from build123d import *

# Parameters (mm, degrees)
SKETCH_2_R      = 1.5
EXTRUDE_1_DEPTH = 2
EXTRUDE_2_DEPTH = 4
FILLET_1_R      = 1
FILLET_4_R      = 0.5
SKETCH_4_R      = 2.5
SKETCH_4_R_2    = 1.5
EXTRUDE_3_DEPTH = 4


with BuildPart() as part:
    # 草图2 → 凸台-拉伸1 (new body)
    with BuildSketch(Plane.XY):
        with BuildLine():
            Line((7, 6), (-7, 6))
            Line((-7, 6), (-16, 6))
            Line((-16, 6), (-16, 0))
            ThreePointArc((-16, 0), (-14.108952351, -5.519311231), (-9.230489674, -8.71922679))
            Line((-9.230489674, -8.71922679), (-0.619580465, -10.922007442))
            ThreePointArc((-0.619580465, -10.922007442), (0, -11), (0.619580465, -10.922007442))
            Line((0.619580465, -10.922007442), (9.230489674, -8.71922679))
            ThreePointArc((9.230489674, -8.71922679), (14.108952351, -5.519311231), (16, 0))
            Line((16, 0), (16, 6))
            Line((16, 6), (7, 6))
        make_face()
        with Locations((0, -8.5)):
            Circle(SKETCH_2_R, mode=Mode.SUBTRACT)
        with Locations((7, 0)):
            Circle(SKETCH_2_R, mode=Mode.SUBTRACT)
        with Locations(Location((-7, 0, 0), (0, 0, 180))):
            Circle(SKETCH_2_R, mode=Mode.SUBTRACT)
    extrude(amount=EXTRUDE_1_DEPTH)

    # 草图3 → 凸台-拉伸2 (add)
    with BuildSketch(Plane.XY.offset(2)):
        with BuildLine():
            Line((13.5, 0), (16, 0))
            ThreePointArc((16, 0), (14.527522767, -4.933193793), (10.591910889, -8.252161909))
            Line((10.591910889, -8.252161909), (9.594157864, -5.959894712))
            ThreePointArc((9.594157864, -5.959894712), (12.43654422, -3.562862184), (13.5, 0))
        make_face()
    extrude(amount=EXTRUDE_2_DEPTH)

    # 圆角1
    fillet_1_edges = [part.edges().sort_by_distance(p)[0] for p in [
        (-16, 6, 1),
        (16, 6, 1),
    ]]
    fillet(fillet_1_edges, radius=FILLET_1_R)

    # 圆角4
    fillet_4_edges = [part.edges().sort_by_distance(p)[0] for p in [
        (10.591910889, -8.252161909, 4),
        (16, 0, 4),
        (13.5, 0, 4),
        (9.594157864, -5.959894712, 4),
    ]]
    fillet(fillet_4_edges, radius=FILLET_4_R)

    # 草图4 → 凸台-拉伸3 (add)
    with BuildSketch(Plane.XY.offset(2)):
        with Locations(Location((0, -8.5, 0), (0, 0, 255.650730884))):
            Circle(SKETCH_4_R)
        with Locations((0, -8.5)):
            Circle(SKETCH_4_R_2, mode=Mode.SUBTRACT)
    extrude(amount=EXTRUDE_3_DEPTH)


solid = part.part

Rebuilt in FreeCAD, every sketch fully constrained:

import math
import FreeCAD as App
import Part
import Sketcher

V = App.Vector


def edges_at(feature, points):
    """Names of the edges that pass closest to the given points."""
    edges = feature.Shape.Edges
    near = lambda p: min(range(len(edges)), key=lambda i: edges[i].distToShape(Part.Vertex(*p))[0])
    return sorted({f"Edge{near(p) + 1}" for p in points})

doc = App.newDocument("Part")
body = doc.addObject("PartDesign::Body", "Body")

# Sketch on XY plane
sketch1 = doc.addObject("Sketcher::SketchObject", "Sketch")
body.addObject(sketch1)
sketch1.AttachmentSupport = (doc.XY_Plane, [""])
sketch1.MapMode = "FlatFace"
sketch1.addGeometry(Part.LineSegment(V(-16, 6, 0), V(-16, 0, 0)), False)
sketch1.addGeometry(Part.ArcOfCircle(Part.Circle(V(-7, 0, 0), V(0, 0, 1), 9), math.radians(-180), math.radians(-104.349269)), False)
sketch1.addGeometry(Part.LineSegment(V(-9.23049, -8.719227, 0), V(-0.61958, -10.922007, 0)), False)
sketch1.addGeometry(Part.ArcOfCircle(Part.Circle(V(0, -8.5, 0), V(0, 0, 1), 2.5), math.radians(-104.349269), math.radians(-75.650731)), False)
sketch1.addGeometry(Part.LineSegment(V(0.61958, -10.922007, 0), V(9.23049, -8.719227, 0)), False)
sketch1.addGeometry(Part.ArcOfCircle(Part.Circle(V(7, 0, 0), V(0, 0, 1), 9), math.radians(-75.650731), math.radians(0)), False)
sketch1.addGeometry(Part.LineSegment(V(16, 0, 0), V(16, 6, 0)), False)
sketch1.addGeometry(Part.LineSegment(V(16, 6, 0), V(-16, 6, 0)), False)
sketch1.addGeometry(Part.Circle(V(0, -8.5, 0), V(0, 0, 1), 1.5), False)
sketch1.addGeometry(Part.Circle(V(-7, 0, 0), V(0, 0, 1), 1.5), False)
sketch1.addGeometry(Part.Circle(V(7, 0, 0), V(0, 0, 1), 1.5), False)
sketch1.addConstraint(Sketcher.Constraint("Tangent", 0, 2, 1, 1))
sketch1.addConstraint(Sketcher.Constraint("Tangent", 1, 2, 2, 1))
sketch1.addConstraint(Sketcher.Constraint("Tangent", 2, 2, 3, 1))
sketch1.addConstraint(Sketcher.Constraint("Tangent", 3, 2, 4, 1))
sketch1.addConstraint(Sketcher.Constraint("Tangent", 4, 2, 5, 1))
sketch1.addConstraint(Sketcher.Constraint("Tangent", 5, 2, 6, 1))
sketch1.addConstraint(Sketcher.Constraint("Coincident", 6, 2, 7, 1))
sketch1.addConstraint(Sketcher.Constraint("Coincident", 7, 2, 0, 1))
sketch1.addConstraint(Sketcher.Constraint("Vertical", 0))
sketch1.addConstraint(Sketcher.Constraint("Vertical", 6))
sketch1.addConstraint(Sketcher.Constraint("Horizontal", 7))
sketch1.addConstraint(Sketcher.Constraint("Coincident", 8, 3, 3, 3))
sketch1.addConstraint(Sketcher.Constraint("Coincident", 9, 3, 1, 3))
sketch1.addConstraint(Sketcher.Constraint("Coincident", 10, 3, 5, 3))
sketch1.addConstraint(Sketcher.Constraint("Equal", 1, 5))
sketch1.addConstraint(Sketcher.Constraint("Equal", 8, 9))
sketch1.addConstraint(Sketcher.Constraint("Equal", 9, 10))
sketch1.addConstraint(Sketcher.Constraint("Symmetric", 1, 3, 5, 3, -1, 1))
sketch1.addConstraint(Sketcher.Constraint("Symmetric", 2, 2, 3, 2, -2))
sketch1.addConstraint(Sketcher.Constraint("Diameter", 8, 3.0))
sketch1.addConstraint(Sketcher.Constraint("Radius", 1, 9.0))
sketch1.addConstraint(Sketcher.Constraint("Radius", 3, 2.5))
sketch1.addConstraint(Sketcher.Constraint("DistanceX", 7, 2, 7, 1, 32.0))
sketch1.addConstraint(Sketcher.Constraint("DistanceY", 0, 2, 0, 1, 6.0))
sketch1.addConstraint(Sketcher.Constraint("DistanceY", 3, 3, -1, 1, 8.5))
pad1 = doc.addObject("PartDesign::Pad", "Pad")
body.addObject(pad1)
pad1.Profile = sketch1
pad1.Length = 2

# Sketch on XY plane
sketch2 = doc.addObject("Sketcher::SketchObject", "Sketch001")
body.addObject(sketch2)
sketch2.AttachmentSupport = (doc.XY_Plane, [""])
sketch2.MapMode = "FlatFace"
sketch2.AttachmentOffset = App.Placement(V(0, 0, 2), App.Rotation())
sketch2.addGeometry(Part.LineSegment(V(16, 0, 0), V(13.5, 0, 0)), False)
sketch2.addGeometry(Part.ArcOfCircle(Part.Circle(V(7, 0, 0), V(0, 0, 1), 6.5), math.radians(-66.477997), math.radians(0)), False)
sketch2.addGeometry(Part.LineSegment(V(9.594158, -5.959895, 0), V(10.591911, -8.252162, 0)), False)
sketch2.addGeometry(Part.ArcOfCircle(Part.Circle(V(7, 0, 0), V(0, 0, 1), 9), math.radians(-66.477997), math.radians(0)), False)
sketch2.addConstraint(Sketcher.Constraint("Coincident", 0, 2, 1, 2))
sketch2.addConstraint(Sketcher.Constraint("Coincident", 1, 1, 2, 1))
sketch2.addConstraint(Sketcher.Constraint("Coincident", 2, 2, 3, 1))
sketch2.addConstraint(Sketcher.Constraint("Coincident", 3, 2, 0, 1))
sketch2.addConstraint(Sketcher.Constraint("Horizontal", 0))
sketch2.addConstraint(Sketcher.Constraint("Coincident", 3, 3, 1, 3))
sketch2.addConstraint(Sketcher.Constraint("PointOnObject", 1, 3, -1))
sketch2.addConstraint(Sketcher.Constraint("PointOnObject", 0, 2, -1))
sketch2.addConstraint(Sketcher.Constraint("Radius", 3, 9.0))
sketch2.addConstraint(Sketcher.Constraint("Radius", 1, 6.5))
sketch2.addConstraint(Sketcher.Constraint("DistanceX", -1, 1, 1, 3, 7.0))
sketch2.addConstraint(Sketcher.Constraint("DistanceX", -1, 1, 2, 2, 10.591911))
sketch2.addConstraint(Sketcher.Constraint("DistanceX", -1, 1, 1, 1, 9.594158))
pad2 = doc.addObject("PartDesign::Pad", "Pad001")
body.addObject(pad2)
pad2.Profile = sketch2
pad2.Length = 4
doc.recompute()

fillet = doc.addObject("PartDesign::Fillet", "Fillet")
body.addObject(fillet)
fillet.Base = (pad2, edges_at(pad2, [(-16, 6, 1), (16, 6, 1)]))
fillet.Radius = 1
doc.recompute()

fillet2 = doc.addObject("PartDesign::Fillet", "Fillet001")
body.addObject(fillet2)
fillet2.Base = (fillet, edges_at(fillet, [
    (10.592, -8.252, 4),
    (16, 0, 4),
    (13.5, 0, 4),
    (9.594, -5.96, 4),
]))
fillet2.Radius = 0.5

# Sketch on XY plane
sketch3 = doc.addObject("Sketcher::SketchObject", "Sketch002")
body.addObject(sketch3)
sketch3.AttachmentSupport = (doc.XY_Plane, [""])
sketch3.MapMode = "FlatFace"
sketch3.AttachmentOffset = App.Placement(V(0, 0, 2), App.Rotation())
sketch3.addGeometry(Part.Circle(V(0, -8.5, 0), V(0, 0, 1), 2.5), False)
sketch3.addGeometry(Part.Circle(V(0, -8.5, 0), V(0, 0, 1), 1.5), False)
sketch3.addConstraint(Sketcher.Constraint("Coincident", 1, 3, 0, 3))
sketch3.addConstraint(Sketcher.Constraint("PointOnObject", 0, 3, -2))
sketch3.addConstraint(Sketcher.Constraint("Diameter", 0, 5.0))
sketch3.addConstraint(Sketcher.Constraint("Diameter", 1, 3.0))
sketch3.addConstraint(Sketcher.Constraint("DistanceY", 0, 3, -1, 1, 8.5))
pad3 = doc.addObject("PartDesign::Pad", "Pad002")
body.addObject(pad3)
pad3.Profile = sketch3
pad3.Length = 4

doc.recompute()
